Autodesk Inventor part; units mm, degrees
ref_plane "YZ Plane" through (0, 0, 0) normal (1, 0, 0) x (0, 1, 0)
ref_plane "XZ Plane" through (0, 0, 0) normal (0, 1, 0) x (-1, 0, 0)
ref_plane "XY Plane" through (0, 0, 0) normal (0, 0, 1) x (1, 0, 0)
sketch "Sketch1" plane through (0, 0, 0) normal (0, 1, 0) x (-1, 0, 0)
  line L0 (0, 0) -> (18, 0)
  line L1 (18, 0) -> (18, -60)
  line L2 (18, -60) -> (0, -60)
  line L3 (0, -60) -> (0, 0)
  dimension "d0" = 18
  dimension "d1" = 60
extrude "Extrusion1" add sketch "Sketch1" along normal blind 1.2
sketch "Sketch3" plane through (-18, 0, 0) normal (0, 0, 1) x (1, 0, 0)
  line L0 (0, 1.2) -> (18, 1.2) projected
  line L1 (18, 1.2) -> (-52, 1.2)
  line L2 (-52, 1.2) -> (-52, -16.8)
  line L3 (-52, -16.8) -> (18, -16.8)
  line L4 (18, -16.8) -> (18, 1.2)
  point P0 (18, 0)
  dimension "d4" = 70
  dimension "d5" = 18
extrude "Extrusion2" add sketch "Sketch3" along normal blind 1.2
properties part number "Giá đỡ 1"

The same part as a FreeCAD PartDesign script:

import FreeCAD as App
import Part
import Sketcher
from FreeCAD import Vector
Q = App.Units.Quantity


def add_polygon(sketch, points):
    """Adds a closed chain of lines whose ends are joined by coincident constraints."""
    first, n = sketch.GeometryCount, len(points)
    for a, b in zip(points, points[1:] + points[:1]):
        sketch.addGeometry(Part.LineSegment(App.Vector(*a, 0), App.Vector(*b, 0)), False)
    for i in range(n):
        sketch.addConstraint(Sketcher.Constraint("Coincident", first + i, 2, first + (i + 1) % n, 1))

doc = App.newDocument("Part")
body = doc.addObject("PartDesign::Body", "Body")

# Sketch on XZ plane
sketch1 = body.newObject("Sketcher::SketchObject", "Sketch")
sketch1.AttachmentSupport = (doc.getObject("XZ_Plane"), [""])
sketch1.MapMode = "FlatFace"
add_polygon(sketch1, [(-18, 0), (0, 0), (0, -60), (-18, -60)])  # lines 0-3
sketch1.addConstraint([
    Sketcher.Constraint("Horizontal", 0),
    Sketcher.Constraint("Vertical", 1),
    Sketcher.Constraint("Horizontal", 2),
    Sketcher.Constraint("Vertical", 3),
    Sketcher.Constraint("Coincident", 0, 2, -1, 1),
    Sketcher.Constraint("DistanceX", 0, 1, 0, 2, Q("18 mm")),
    Sketcher.Constraint("DistanceY", 1, 2, 1, 1, Q("60 mm")),
])
pad1 = body.newObject("PartDesign::Pad", "Pad")
pad1.Profile = sketch1
pad1.Length = 1.2
pad1.Reversed = True

# Sketch on XY plane
sketch2 = body.newObject("Sketcher::SketchObject", "Sketch001")
sketch2.AttachmentSupport = (doc.getObject("XY_Plane"), [""])
sketch2.MapMode = "FlatFace"
add_polygon(sketch2, [(0, 1.2), (-70, 1.2), (-70, -16.8), (0, -16.8)])  # lines 0-3
sketch2.addConstraint([
    Sketcher.Constraint("Horizontal", 0),
    Sketcher.Constraint("Vertical", 1),
    Sketcher.Constraint("Horizontal", 2),
    Sketcher.Constraint("Vertical", 3),
    Sketcher.Constraint("PointOnObject", 2, 2, -2),
    Sketcher.Constraint("DistanceX", 0, 2, 0, 1, Q("70 mm")),
    Sketcher.Constraint("DistanceY", 1, 2, 1, 1, Q("18 mm")),
    Sketcher.Constraint("DistanceY", -1, 1, 0, 2, Q("1.2 mm")),
])
pad2 = body.newObject("PartDesign::Pad", "Pad001")
pad2.Profile = sketch2
pad2.Length = 1.2

doc.recompute()
